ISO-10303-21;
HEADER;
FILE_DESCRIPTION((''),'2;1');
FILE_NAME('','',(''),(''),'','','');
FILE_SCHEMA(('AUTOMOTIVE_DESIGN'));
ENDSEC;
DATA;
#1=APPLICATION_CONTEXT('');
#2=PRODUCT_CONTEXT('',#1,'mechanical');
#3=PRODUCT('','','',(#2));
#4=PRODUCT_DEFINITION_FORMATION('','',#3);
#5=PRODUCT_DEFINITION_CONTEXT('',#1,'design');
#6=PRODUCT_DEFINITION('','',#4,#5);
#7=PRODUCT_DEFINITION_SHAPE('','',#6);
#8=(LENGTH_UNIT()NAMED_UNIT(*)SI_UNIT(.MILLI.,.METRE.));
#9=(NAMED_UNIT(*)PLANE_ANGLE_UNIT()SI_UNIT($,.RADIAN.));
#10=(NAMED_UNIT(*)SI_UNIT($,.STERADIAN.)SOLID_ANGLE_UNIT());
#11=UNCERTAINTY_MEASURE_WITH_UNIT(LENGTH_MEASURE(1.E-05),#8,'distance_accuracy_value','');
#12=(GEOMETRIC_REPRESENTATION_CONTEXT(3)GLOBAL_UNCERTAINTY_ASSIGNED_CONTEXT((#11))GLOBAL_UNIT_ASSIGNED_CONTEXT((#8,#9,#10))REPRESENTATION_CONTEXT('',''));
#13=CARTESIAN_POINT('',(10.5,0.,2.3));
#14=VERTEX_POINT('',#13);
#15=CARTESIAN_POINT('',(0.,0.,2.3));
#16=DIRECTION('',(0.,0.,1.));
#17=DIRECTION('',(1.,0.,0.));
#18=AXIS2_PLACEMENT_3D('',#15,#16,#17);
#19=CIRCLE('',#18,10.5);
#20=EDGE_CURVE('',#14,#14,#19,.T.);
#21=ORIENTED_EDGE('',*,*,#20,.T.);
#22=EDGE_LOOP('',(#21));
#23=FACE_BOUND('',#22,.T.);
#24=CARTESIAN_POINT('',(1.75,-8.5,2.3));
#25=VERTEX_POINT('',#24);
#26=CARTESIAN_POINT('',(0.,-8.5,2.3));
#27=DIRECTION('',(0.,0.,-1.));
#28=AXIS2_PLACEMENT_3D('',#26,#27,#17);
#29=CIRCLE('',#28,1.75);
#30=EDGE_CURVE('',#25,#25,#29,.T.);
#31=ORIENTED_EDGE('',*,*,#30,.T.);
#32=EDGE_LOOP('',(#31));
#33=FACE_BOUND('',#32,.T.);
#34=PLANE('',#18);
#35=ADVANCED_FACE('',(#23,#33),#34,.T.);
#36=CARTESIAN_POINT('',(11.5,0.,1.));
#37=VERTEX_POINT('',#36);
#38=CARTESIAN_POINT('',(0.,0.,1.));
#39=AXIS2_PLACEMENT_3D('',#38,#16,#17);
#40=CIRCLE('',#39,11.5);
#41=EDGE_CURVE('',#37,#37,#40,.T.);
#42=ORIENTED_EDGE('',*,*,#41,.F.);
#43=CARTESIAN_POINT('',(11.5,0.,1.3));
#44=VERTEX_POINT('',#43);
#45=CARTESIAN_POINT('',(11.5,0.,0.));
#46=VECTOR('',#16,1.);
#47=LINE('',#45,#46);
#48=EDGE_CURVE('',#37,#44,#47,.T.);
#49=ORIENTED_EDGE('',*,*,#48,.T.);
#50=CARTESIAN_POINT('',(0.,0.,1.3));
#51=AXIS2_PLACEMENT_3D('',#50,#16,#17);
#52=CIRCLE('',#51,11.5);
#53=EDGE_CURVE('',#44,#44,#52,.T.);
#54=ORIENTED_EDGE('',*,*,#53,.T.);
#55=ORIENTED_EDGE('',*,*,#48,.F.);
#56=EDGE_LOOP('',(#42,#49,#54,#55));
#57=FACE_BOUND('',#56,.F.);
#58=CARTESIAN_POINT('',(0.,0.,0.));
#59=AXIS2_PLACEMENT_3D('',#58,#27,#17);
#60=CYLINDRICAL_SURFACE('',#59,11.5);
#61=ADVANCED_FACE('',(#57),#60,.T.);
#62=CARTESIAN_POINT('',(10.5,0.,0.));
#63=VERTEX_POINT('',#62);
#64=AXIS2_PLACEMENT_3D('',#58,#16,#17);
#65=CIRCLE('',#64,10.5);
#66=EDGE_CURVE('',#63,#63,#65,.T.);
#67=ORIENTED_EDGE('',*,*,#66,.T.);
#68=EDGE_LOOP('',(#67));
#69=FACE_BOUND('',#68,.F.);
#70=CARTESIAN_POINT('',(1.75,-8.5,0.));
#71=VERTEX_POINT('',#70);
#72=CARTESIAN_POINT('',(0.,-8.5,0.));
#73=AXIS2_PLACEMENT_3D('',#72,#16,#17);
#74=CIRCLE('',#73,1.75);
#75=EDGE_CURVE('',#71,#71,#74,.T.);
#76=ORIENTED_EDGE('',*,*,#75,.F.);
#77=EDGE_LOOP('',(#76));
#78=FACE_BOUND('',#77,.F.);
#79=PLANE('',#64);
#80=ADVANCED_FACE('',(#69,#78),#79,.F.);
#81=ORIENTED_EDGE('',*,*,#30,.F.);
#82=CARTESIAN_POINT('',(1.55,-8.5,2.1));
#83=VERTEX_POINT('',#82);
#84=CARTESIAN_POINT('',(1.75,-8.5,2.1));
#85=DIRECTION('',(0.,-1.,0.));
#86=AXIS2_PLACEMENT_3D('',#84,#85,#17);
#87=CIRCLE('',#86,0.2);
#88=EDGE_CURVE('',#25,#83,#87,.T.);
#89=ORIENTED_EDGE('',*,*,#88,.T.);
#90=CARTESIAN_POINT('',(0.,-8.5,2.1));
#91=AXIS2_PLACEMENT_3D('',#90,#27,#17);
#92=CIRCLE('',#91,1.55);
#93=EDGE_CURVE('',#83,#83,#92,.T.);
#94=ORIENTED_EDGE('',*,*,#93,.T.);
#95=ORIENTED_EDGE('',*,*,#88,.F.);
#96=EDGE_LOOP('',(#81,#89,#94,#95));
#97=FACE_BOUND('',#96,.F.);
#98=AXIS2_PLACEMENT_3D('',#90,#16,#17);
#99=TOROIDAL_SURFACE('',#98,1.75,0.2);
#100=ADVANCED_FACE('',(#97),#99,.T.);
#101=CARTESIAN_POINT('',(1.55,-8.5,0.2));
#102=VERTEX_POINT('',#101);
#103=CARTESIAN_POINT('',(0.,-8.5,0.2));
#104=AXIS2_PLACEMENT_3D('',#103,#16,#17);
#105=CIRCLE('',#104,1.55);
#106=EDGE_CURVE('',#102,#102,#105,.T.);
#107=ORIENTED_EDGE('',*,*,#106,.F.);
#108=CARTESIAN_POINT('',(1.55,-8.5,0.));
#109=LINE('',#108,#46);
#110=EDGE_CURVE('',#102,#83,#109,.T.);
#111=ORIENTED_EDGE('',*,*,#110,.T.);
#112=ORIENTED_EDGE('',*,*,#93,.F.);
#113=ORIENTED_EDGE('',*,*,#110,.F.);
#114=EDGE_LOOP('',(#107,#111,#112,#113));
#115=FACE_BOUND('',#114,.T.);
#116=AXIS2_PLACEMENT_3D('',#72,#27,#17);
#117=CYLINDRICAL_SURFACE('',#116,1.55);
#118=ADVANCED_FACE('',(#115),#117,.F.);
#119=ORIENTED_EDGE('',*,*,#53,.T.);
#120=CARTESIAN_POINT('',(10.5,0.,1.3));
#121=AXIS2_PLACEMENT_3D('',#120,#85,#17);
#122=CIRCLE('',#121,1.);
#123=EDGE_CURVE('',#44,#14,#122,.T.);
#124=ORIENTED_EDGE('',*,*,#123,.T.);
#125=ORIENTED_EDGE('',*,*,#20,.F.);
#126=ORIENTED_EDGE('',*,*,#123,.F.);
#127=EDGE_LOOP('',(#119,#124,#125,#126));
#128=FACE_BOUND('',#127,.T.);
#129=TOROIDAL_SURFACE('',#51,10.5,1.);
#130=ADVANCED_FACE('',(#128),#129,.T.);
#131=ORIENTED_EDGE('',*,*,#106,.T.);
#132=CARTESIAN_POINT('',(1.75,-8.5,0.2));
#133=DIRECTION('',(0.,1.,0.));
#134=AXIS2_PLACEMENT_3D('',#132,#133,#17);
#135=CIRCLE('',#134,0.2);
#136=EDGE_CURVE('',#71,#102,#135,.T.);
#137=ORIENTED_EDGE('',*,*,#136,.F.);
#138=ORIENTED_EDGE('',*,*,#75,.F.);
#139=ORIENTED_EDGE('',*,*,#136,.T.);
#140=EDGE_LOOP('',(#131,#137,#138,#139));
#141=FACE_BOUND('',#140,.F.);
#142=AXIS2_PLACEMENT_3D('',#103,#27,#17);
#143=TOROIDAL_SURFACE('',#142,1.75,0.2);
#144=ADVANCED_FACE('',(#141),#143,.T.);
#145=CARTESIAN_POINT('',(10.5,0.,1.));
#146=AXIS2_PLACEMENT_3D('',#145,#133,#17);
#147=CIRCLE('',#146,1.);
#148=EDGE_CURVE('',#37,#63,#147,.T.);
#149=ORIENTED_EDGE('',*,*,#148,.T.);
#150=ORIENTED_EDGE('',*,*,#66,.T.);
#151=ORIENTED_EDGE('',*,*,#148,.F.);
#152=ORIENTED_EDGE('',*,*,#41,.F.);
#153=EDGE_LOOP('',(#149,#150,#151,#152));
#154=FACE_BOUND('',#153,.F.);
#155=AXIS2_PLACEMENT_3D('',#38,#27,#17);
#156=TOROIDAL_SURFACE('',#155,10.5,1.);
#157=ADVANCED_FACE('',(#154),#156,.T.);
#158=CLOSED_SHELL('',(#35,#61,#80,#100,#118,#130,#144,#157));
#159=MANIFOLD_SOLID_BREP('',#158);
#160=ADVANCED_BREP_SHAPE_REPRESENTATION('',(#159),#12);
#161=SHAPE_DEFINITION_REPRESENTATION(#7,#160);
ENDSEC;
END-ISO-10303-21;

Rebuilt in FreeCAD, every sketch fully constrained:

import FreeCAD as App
import Part
import Sketcher


def edges_at(feature, points):
    """Names of the edges that pass closest to the given points."""
    edges = feature.Shape.Edges
    near = lambda p: min(range(len(edges)), key=lambda i: edges[i].distToShape(Part.Vertex(*p))[0])
    return sorted({f"Edge{near(p) + 1}" for p in points})

doc = App.newDocument("Part")
params = doc.addObject("Spreadsheet::Sheet", "Params")
for row, (alias, value) in enumerate([
    ("sketch1_diameter", "23 mm"),
    ("pad1_length", "2.3 mm"),
    ("sketch2_diameter", "3.1 mm"),
    ("pocket1_length", "25 mm"),
    ("fillet_radius", "1 mm"),
    ("fillet2_radius", "0.2 mm"),
], start=1):
    params.set(f"A{row}", alias)
    params.set(f"B{row}", "=" + value)
    params.setAlias(f"B{row}", alias)

body = doc.addObject("PartDesign::Body", "Body")

# Sketch on XY plane
sketch1 = doc.addObject("Sketcher::SketchObject", "Sketch")
body.addObject(sketch1)
sketch1.AttachmentSupport = (doc.XY_Plane, [""])
sketch1.MapMode = "FlatFace"
sketch1.addGeometry(Part.Circle(App.Vector(0, 0, 0), App.Vector(0, 0, 1), 11.5), False)
sketch1.addConstraint([
    Sketcher.Constraint("Coincident", 0, 3, -1, 1),
    Sketcher.Constraint("Diameter", 0, 23.0),
])
sketch1.setExpression("Constraints[1]", "Params.sketch1_diameter")
pad1 = doc.addObject("PartDesign::Pad", "Pad")
body.addObject(pad1)
pad1.Profile = sketch1
pad1.setExpression("Length", "Params.pad1_length")

# Sketch on XY plane
sketch2 = doc.addObject("Sketcher::SketchObject", "Sketch001")
body.addObject(sketch2)
sketch2.AttachmentSupport = (doc.XY_Plane, [""])
sketch2.MapMode = "FlatFace"
sketch2.addGeometry(Part.Circle(App.Vector(0, -8.5, 0), App.Vector(0, 0, 1), 1.55), False)
sketch2.addConstraint([
    Sketcher.Constraint("PointOnObject", 0, 3, -2),
    Sketcher.Constraint("Diameter", 0, 3.1),
    Sketcher.Constraint("DistanceY", 0, 3, -1, 1, 8.5),
])
sketch2.setExpression("Constraints[1]", "Params.sketch2_diameter")
pocket1 = doc.addObject("PartDesign::Pocket", "Pocket")
body.addObject(pocket1)
pocket1.Profile = sketch2
pocket1.setExpression("Length", "Params.pocket1_length")
pocket1.Reversed = True
doc.recompute()

fillet = doc.addObject("PartDesign::Fillet", "Fillet")
body.addObject(fillet)
fillet.Base = (pocket1, edges_at(pocket1, [(-11.5, 0, 2.3), (-11.5, 0, 0)]))
fillet.setExpression("Radius", "Params.fillet_radius")
doc.recompute()

fillet2 = doc.addObject("PartDesign::Fillet", "Fillet001")
body.addObject(fillet2)
fillet2.Base = (fillet, edges_at(fillet, [(-10.5, 0, 2.3), (-1.55, -8.5, 2.3), (-1.55, -8.5, 0)]))
fillet2.setExpression("Radius", "Params.fillet2_radius")

doc.recompute()
